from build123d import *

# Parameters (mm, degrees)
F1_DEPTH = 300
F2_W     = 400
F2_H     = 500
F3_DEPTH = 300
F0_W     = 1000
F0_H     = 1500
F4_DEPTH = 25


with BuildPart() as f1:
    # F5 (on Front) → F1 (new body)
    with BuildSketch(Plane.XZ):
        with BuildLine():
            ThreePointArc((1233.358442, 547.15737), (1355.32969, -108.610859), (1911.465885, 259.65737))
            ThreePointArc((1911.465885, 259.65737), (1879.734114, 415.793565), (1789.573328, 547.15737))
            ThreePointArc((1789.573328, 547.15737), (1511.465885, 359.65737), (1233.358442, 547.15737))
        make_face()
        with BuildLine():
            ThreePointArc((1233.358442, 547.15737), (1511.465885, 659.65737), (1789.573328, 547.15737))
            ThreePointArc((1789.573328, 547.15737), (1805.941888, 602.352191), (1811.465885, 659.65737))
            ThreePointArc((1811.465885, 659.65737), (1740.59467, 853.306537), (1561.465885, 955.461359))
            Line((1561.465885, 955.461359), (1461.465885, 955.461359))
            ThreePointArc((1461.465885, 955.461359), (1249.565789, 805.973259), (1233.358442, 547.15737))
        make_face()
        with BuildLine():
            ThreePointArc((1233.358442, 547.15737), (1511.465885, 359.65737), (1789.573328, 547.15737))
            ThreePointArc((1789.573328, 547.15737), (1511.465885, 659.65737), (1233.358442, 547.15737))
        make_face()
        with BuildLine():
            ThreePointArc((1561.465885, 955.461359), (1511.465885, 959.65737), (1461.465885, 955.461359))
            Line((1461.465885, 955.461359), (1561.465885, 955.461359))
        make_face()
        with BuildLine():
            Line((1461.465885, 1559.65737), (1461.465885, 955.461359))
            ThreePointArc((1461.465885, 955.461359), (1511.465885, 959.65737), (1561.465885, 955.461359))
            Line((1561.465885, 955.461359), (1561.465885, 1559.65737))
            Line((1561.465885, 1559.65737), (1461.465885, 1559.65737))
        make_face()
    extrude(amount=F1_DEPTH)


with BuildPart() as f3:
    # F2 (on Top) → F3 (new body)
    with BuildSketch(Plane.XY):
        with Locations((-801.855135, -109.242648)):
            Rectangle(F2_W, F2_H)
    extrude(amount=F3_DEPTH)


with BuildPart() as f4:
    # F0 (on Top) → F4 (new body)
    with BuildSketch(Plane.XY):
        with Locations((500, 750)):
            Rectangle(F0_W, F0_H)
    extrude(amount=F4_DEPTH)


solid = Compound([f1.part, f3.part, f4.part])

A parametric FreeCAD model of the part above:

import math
import FreeCAD as App
import Part
import Sketcher

V = App.Vector
Q = App.Units.Quantity

doc = App.newDocument("Part")
body = doc.addObject("PartDesign::Body", "Body")

sketch1 = body.newObject("Sketcher::SketchObject", "Sketch")
sketch1.AttachmentSupport = (doc.getObject("XZ_Plane"), [""])
sketch1.MapMode = "FlatFace"
sketch1.addGeometry([
    Part.ArcOfCircle(Part.Circle(V(1511.465885, 259.65737, 0), V(0, 0, 1), 400), math.radians(134.048626), math.radians(360)),
    Part.ArcOfCircle(Part.Circle(V(1511.465884, 259.657369, 0), V(0, 0, 1), 400.000001), math.radians(0), math.radians(45.951374)),
    Part.ArcOfCircle(Part.Circle(V(1511.465881, 659.657371, 0), V(0, 0, 1), 300.000004), math.radians(-22.024313), math.radians(0)),
    Part.ArcOfCircle(Part.Circle(V(1511.465885, 659.65737, 0), V(0, 0, 1), 300), math.radians(0), math.radians(80.405932)),
    Part.LineSegment(V(1561.465885, 955.461359, 0), V(1561.465885, 1559.65737, 0)),
    Part.LineSegment(V(1561.465885, 1559.65737, 0), V(1461.465885, 1559.65737, 0)),
    Part.LineSegment(V(1461.465885, 1559.65737, 0), V(1461.465885, 955.461359, 0)),
    Part.ArcOfCircle(Part.Circle(V(1511.465886, 659.65737, 0), V(0, 0, 1), 300), math.radians(99.594068), math.radians(202.024313)),
], False)
sketch1.addConstraint([
    Sketcher.Constraint("Tangent", 0, 2, 1, 1),
    Sketcher.Constraint("Coincident", 1, 2, 2, 1),
    Sketcher.Constraint("Tangent", 2, 2, 3, 1),
    Sketcher.Constraint("Coincident", 3, 2, 4, 1),
    Sketcher.Constraint("Coincident", 4, 2, 5, 1),
    Sketcher.Constraint("Coincident", 5, 2, 6, 1),
    Sketcher.Constraint("Coincident", 6, 2, 7, 1),
    Sketcher.Constraint("Coincident", 7, 2, 0, 1),
    Sketcher.Constraint("Vertical", 4),
    Sketcher.Constraint("Horizontal", 5),
    Sketcher.Constraint("Vertical", 6),
    Sketcher.Constraint("Coincident", 7, 3, 2, 3),
    Sketcher.Constraint("Equal", 0, 1),
    Sketcher.Constraint("Equal", 3, 7),
    Sketcher.Constraint("Horizontal", 1, 3, 0, 2),
    Sketcher.Constraint("Horizontal", 7, 3, 2, 2),
    Sketcher.Constraint("Horizontal", 3, 2, 6, 2),
    Sketcher.Constraint("Horizontal", 1, 2, 7, 2),
    Sketcher.Constraint("Vertical", 1, 3, 3, 3),
    Sketcher.Constraint("Radius", 0, Q("400 mm")),
    Sketcher.Constraint("Radius", 3, Q("300 mm")),
    Sketcher.Constraint("DistanceX", 5, 2, 5, 1, Q("100 mm")),
    Sketcher.Constraint("DistanceY", 0, 3, 2, 3, Q("400.000001 mm")),
    Sketcher.Constraint("DistanceY", 2, 3, 4, 2, Q("899.999999 mm")),
    Sketcher.Constraint("DistanceY", -1, 1, 0, 3, Q("259.65737 mm")),
    Sketcher.Constraint("DistanceX", -1, 1, 2, 3, Q("1511.465881 mm")),
])
pad1 = body.newObject("PartDesign::Pad", "Pad")
pad1.Profile = sketch1
pad1.Length = 300
body2 = doc.addObject("PartDesign::Body", "Body001")

sketch2 = body2.newObject("Sketcher::SketchObject", "Sketch001")
sketch2.AttachmentSupport = (doc.getObject("XY_Plane001"), [""])
sketch2.MapMode = "FlatFace"
sketch2.addGeometry([
    Part.LineSegment(V(-1001.855135, 140.757352, 0), V(-1001.855135, -359.242648, 0)),
    Part.LineSegment(V(-1001.855135, -359.242648, 0), V(-601.855135, -359.242648, 0)),
    Part.LineSegment(V(-601.855135, -359.242648, 0), V(-601.855135, 140.757352, 0)),
    Part.LineSegment(V(-601.855135, 140.757352, 0), V(-1001.855135, 140.757352, 0)),
], False)
sketch2.addConstraint([
    Sketcher.Constraint("Coincident", 0, 2, 1, 1),
    Sketcher.Constraint("Coincident", 1, 2, 2, 1),
    Sketcher.Constraint("Coincident", 2, 2, 3, 1),
    Sketcher.Constraint("Coincident", 3, 2, 0, 1),
    Sketcher.Constraint("Vertical", 0),
    Sketcher.Constraint("Horizontal", 1),
    Sketcher.Constraint("Vertical", 2),
    Sketcher.Constraint("Horizontal", 3),
    Sketcher.Constraint("DistanceX", 1, 1, 1, 2, Q("400 mm")),
    Sketcher.Constraint("DistanceY", 0, 2, 0, 1, Q("500 mm")),
    Sketcher.Constraint("DistanceY", -1, 1, 2, 2, Q("140.757352 mm")),
    Sketcher.Constraint("DistanceX", 0, 2, -1, 1, Q("1001.855135 mm")),
])
pad2 = body2.newObject("PartDesign::Pad", "Pad001")
pad2.Profile = sketch2
pad2.Length = 300
body3 = doc.addObject("PartDesign::Body", "Body002")

sketch3 = body3.newObject("Sketcher::SketchObject", "Sketch002")
sketch3.AttachmentSupport = (doc.getObject("XY_Plane002"), [""])
sketch3.MapMode = "FlatFace"
sketch3.addGeometry([
    Part.LineSegment(V(0, 1500, 0), V(0, 0, 0)),
    Part.LineSegment(V(0, 0, 0), V(1000, 0, 0)),
    Part.LineSegment(V(1000, 0, 0), V(1000, 1500, 0)),
    Part.LineSegment(V(1000, 1500, 0), V(0, 1500, 0)),
], False)
sketch3.addConstraint([
    Sketcher.Constraint("Coincident", 0, 2, 1, 1),
    Sketcher.Constraint("Coincident", 1, 2, 2, 1),
    Sketcher.Constraint("Coincident", 2, 2, 3, 1),
    Sketcher.Constraint("Coincident", 3, 2, 0, 1),
    Sketcher.Constraint("Vertical", 0),
    Sketcher.Constraint("Horizontal", 1),
    Sketcher.Constraint("Vertical", 2),
    Sketcher.Constraint("Horizontal", 3),
    Sketcher.Constraint("Coincident", 0, 2, -1, 1),
    Sketcher.Constraint("DistanceX", 1, 1, 1, 2, Q("1000 mm")),
    Sketcher.Constraint("DistanceY", 0, 2, 0, 1, Q("1500 mm")),
])
pad3 = body3.newObject("PartDesign::Pad", "Pad002")
pad3.Profile = sketch3
pad3.Length = 25

doc.recompute()
